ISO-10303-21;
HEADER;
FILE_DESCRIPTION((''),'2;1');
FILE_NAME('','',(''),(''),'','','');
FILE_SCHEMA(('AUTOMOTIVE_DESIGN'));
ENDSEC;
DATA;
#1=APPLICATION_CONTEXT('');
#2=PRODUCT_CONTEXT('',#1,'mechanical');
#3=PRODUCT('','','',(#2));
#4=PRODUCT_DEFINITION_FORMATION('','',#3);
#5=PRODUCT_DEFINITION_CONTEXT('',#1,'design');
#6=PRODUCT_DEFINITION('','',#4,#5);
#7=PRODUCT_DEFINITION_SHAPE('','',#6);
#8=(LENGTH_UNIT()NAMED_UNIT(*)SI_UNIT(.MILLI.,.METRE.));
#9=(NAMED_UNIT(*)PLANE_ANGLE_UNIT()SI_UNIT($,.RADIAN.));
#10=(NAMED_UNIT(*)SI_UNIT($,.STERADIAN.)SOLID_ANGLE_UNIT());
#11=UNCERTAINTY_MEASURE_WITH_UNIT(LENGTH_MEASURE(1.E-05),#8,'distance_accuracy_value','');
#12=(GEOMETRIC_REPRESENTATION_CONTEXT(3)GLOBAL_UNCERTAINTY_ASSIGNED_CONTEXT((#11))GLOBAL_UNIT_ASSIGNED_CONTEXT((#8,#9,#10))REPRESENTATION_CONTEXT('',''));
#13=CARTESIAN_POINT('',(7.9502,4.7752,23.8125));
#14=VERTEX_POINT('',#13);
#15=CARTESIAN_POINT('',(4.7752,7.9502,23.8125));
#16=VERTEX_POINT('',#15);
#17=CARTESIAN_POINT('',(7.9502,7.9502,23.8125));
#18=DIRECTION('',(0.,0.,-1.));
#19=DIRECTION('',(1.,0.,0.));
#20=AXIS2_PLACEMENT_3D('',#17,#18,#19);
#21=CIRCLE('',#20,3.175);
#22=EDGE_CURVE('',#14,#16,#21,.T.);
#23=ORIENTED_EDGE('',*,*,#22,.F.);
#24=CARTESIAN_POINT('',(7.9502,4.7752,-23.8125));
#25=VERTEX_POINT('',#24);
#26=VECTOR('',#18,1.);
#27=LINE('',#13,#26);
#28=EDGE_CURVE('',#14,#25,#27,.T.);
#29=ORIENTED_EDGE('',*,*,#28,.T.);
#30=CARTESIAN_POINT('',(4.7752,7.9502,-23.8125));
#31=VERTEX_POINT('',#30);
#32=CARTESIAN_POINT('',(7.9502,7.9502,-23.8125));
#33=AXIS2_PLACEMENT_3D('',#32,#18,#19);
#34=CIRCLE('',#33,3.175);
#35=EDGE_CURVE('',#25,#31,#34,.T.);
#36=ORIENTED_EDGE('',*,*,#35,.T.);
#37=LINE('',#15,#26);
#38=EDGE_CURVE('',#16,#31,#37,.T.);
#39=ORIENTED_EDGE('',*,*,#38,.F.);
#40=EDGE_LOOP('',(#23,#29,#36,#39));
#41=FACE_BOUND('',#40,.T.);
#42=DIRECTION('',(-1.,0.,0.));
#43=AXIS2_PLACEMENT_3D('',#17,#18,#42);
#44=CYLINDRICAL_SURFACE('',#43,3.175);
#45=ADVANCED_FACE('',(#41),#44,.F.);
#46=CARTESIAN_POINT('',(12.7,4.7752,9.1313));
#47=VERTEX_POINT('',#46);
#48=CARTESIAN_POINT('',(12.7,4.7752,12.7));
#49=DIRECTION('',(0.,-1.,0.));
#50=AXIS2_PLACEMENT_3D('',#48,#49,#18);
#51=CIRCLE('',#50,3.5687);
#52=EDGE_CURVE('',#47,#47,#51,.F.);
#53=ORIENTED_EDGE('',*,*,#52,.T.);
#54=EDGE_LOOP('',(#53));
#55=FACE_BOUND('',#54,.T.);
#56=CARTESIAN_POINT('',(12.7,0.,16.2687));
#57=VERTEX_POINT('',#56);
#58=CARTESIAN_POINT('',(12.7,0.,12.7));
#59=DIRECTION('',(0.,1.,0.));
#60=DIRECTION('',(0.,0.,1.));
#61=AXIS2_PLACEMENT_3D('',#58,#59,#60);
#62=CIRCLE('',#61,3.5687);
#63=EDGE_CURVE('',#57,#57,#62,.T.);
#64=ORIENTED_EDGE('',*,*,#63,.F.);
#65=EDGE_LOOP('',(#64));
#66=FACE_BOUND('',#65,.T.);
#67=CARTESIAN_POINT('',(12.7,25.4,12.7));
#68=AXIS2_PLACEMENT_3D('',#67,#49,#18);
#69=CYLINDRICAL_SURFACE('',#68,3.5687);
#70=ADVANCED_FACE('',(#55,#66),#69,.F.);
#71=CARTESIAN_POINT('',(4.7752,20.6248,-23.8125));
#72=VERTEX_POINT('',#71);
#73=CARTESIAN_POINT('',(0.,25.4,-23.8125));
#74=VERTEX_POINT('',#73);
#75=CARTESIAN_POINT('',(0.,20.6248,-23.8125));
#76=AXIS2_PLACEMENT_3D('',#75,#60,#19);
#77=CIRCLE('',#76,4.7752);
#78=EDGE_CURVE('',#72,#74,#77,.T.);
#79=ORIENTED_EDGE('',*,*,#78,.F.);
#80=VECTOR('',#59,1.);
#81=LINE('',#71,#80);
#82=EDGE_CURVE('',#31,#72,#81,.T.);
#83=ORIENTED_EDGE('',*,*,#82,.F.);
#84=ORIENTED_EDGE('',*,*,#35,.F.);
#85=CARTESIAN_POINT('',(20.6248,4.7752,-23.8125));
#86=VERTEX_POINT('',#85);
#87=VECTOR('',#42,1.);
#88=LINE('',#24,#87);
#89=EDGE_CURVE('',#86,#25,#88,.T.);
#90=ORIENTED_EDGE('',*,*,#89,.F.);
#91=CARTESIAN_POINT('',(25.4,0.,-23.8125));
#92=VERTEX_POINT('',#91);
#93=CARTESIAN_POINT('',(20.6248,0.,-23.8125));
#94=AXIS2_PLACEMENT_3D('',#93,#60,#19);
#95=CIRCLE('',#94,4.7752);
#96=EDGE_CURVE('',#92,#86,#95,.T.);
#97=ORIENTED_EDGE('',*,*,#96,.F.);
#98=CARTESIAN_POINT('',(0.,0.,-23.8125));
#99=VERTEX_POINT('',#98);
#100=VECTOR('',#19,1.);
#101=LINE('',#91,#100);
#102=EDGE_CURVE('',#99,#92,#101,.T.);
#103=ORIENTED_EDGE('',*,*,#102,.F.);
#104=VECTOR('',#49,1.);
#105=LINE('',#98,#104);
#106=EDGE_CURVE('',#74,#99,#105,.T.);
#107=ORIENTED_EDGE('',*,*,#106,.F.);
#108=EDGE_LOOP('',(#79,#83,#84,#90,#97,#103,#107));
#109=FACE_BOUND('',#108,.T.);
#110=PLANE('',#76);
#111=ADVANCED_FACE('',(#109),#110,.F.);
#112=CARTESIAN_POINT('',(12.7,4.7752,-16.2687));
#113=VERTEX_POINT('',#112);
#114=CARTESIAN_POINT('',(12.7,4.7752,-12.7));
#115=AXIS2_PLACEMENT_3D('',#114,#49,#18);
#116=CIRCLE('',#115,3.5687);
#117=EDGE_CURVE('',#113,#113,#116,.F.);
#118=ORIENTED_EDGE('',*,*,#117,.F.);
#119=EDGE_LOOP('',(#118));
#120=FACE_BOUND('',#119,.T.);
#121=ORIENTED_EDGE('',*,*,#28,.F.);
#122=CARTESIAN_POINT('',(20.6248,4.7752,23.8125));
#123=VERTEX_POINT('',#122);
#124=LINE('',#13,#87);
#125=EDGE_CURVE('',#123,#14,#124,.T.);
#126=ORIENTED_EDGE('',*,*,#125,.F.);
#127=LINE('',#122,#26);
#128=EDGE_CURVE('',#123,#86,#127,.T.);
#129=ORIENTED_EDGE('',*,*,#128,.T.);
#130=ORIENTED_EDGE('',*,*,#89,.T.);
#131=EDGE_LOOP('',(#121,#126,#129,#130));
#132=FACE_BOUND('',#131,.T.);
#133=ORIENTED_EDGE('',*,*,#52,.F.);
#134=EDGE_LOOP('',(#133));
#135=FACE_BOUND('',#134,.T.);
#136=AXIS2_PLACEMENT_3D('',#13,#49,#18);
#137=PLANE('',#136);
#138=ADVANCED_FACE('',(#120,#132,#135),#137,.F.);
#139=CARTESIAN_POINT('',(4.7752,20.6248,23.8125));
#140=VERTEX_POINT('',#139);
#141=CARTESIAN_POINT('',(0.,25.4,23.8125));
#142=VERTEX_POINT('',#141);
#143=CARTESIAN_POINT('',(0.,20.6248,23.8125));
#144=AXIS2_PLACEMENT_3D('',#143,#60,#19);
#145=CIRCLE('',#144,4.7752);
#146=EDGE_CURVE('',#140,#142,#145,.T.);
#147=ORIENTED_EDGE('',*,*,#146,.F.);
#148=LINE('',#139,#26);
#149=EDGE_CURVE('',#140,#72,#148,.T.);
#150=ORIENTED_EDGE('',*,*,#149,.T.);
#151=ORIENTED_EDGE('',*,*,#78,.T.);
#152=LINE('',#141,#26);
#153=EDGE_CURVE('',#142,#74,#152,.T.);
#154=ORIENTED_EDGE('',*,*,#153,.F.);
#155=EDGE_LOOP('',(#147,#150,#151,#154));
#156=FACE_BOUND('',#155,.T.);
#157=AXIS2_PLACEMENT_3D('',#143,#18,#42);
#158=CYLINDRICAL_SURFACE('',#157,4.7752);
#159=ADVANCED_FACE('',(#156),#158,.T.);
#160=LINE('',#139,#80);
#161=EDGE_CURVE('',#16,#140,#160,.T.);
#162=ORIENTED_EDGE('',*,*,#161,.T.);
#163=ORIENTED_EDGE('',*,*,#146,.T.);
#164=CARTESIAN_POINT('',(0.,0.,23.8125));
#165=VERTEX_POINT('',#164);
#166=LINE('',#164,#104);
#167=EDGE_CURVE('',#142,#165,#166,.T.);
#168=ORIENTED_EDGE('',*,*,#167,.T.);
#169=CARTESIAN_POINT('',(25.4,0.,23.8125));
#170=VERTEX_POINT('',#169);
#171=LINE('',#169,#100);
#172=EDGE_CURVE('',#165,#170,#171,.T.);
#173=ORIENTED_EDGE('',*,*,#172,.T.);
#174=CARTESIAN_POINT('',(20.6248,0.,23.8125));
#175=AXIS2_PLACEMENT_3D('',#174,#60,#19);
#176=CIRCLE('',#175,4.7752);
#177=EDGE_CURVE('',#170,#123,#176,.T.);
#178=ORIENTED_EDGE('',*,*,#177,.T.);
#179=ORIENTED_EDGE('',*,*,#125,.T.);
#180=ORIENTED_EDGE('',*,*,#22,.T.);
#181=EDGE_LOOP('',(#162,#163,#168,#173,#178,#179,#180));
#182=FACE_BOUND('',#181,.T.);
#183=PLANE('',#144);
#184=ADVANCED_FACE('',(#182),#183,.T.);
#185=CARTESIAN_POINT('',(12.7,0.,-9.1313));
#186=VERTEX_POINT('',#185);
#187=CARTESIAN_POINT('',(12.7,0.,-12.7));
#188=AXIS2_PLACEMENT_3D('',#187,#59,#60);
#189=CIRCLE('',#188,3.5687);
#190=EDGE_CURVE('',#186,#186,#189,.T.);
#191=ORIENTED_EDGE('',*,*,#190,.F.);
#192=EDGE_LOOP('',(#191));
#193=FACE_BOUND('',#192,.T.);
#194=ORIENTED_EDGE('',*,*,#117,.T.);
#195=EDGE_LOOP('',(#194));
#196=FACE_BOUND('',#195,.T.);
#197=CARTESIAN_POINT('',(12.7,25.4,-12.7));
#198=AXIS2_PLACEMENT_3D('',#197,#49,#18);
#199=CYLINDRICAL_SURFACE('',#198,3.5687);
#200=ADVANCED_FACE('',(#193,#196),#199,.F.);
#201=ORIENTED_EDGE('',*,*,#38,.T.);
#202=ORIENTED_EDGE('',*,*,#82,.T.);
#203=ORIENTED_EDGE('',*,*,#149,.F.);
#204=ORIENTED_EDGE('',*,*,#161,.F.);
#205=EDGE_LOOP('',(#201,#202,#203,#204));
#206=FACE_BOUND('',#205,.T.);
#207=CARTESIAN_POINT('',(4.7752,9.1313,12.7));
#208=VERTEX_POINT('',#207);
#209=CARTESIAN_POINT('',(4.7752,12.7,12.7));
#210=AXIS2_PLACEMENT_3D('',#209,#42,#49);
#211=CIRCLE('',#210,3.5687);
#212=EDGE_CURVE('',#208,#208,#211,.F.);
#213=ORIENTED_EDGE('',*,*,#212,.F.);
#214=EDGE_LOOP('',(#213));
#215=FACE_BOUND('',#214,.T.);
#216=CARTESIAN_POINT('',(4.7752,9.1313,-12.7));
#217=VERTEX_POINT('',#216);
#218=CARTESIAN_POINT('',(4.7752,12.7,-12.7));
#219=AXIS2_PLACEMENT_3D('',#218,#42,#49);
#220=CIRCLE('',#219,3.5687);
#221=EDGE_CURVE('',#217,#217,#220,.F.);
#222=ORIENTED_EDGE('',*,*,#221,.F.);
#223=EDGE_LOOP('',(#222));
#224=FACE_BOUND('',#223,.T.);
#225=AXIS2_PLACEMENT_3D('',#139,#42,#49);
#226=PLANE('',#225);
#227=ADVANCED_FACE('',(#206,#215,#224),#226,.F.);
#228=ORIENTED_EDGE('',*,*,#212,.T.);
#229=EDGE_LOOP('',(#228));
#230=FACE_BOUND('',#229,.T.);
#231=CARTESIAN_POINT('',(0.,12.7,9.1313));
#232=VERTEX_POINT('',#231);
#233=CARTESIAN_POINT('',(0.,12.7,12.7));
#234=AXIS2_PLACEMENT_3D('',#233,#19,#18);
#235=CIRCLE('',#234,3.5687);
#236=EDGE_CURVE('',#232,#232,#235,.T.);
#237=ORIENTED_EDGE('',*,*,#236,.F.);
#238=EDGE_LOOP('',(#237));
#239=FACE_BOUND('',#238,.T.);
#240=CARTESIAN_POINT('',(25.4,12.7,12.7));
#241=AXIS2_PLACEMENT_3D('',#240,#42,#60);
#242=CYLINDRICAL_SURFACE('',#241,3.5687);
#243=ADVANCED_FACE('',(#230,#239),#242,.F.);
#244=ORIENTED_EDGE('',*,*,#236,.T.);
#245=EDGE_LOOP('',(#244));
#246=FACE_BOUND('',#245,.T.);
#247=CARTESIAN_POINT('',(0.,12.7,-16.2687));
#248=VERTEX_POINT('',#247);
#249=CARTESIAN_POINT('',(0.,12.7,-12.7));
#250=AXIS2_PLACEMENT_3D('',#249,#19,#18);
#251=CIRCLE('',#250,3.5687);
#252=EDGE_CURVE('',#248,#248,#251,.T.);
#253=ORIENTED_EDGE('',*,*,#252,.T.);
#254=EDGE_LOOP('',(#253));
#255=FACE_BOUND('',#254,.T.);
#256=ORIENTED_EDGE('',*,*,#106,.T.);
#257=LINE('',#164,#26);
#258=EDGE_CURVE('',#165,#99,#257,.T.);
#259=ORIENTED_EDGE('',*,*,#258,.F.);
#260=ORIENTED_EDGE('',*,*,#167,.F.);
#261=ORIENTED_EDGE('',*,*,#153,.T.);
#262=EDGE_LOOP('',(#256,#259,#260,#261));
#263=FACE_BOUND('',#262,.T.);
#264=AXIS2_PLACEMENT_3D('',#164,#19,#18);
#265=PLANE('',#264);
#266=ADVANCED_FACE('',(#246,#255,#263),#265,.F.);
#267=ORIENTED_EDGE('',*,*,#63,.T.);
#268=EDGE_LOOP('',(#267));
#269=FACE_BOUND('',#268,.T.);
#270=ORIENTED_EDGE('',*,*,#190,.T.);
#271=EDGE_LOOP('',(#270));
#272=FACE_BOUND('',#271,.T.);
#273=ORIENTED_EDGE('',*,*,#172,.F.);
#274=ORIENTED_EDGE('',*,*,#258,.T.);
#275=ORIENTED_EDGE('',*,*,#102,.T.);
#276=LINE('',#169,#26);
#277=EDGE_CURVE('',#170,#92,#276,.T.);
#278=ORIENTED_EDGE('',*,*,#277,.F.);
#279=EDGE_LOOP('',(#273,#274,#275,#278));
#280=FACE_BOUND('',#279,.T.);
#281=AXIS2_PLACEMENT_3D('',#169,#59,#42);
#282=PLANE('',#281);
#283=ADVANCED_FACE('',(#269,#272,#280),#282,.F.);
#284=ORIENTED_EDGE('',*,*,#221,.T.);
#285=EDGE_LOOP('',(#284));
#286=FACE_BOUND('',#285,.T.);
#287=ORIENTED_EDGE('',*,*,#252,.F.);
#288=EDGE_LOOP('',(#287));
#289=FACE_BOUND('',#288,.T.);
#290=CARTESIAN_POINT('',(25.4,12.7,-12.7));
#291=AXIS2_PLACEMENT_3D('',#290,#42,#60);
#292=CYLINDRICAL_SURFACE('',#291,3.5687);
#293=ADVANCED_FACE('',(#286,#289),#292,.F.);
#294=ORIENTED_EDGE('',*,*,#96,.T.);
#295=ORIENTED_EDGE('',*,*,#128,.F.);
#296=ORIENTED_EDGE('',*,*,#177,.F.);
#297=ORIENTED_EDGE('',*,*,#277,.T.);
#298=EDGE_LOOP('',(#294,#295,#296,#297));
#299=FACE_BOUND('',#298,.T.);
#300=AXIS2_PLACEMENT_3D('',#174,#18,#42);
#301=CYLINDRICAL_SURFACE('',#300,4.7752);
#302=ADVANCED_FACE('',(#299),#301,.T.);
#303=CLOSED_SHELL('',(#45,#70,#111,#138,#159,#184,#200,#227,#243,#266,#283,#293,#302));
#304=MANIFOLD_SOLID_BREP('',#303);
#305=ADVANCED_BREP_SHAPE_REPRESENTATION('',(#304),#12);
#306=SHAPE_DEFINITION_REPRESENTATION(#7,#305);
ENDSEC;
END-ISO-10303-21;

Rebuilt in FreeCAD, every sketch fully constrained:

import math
import FreeCAD as App
import Part
import Sketcher
Q = App.Units.Quantity

doc = App.newDocument("Part")
params = doc.addObject("Spreadsheet::Sheet", "Params")
for row, (alias, value) in enumerate([
    ("sketch1_width", "1 in"),
    ("sketch1_radius", "0.188 in"),
    ("sketch1_radius2", "0.125 in"),
    ("pad1_length", "1.875 in"),
    ("sketch2_diameter", "0.281 in"),
    ("sketch3_diameter", "0.281 in"),
], start=1):
    params.set(f"A{row}", alias)
    params.set(f"B{row}", "=" + value)
    params.setAlias(f"B{row}", alias)

body = doc.addObject("PartDesign::Body", "Body")

sketch1 = doc.addObject("Sketcher::SketchObject", "Sketch")
body.addObject(sketch1)
sketch1.AttachmentSupport = (doc.XY_Plane, [""])
sketch1.MapMode = "FlatFace"
sketch1.addGeometry([
    Part.LineSegment(App.Vector(0, 25.4, 0), App.Vector(0, 0, 0)),
    Part.LineSegment(App.Vector(0, 0, 0), App.Vector(25.4, 0, 0)),
    Part.ArcOfCircle(Part.Circle(App.Vector(20.6248, 0, 0), App.Vector(0, 0, 1), 4.7752), math.radians(0), math.radians(90)),
    Part.LineSegment(App.Vector(20.6248, 4.7752, 0), App.Vector(7.9502, 4.7752, 0)),
    Part.ArcOfCircle(Part.Circle(App.Vector(7.9502, 7.9502, 0), App.Vector(0, 0, 1), 3.175), math.radians(-180), math.radians(-90)),
    Part.LineSegment(App.Vector(4.7752, 7.9502, 0), App.Vector(4.7752, 20.6248, 0)),
    Part.ArcOfCircle(Part.Circle(App.Vector(0, 20.6248, 0), App.Vector(0, 0, 1), 4.7752), math.radians(0), math.radians(90)),
], False)
sketch1.addConstraint([
    Sketcher.Constraint("Coincident", 0, 2, 1, 1),
    Sketcher.Constraint("Coincident", 1, 2, 2, 1),
    Sketcher.Constraint("Tangent", 2, 2, 3, 1),
    Sketcher.Constraint("Tangent", 3, 2, 4, 2),
    Sketcher.Constraint("Tangent", 4, 1, 5, 1),
    Sketcher.Constraint("Tangent", 5, 2, 6, 1),
    Sketcher.Constraint("Coincident", 6, 2, 0, 1),
    Sketcher.Constraint("Vertical", 0),
    Sketcher.Constraint("Horizontal", 1),
    Sketcher.Constraint("Horizontal", 3),
    Sketcher.Constraint("Vertical", 5),
    Sketcher.Constraint("Coincident", 0, 2, -1, 1),
    Sketcher.Constraint("Equal", 2, 6),
    Sketcher.Constraint("PointOnObject", 2, 3, -1),
    Sketcher.Constraint("PointOnObject", 6, 3, -2),
    Sketcher.Constraint("Equal", 1, 0),
    Sketcher.Constraint("DistanceX", 1, 1, 1, 2, Q("1 in")),
    Sketcher.Constraint("Radius", 2, Q("0.188 in")),
    Sketcher.Constraint("Radius", 4, Q("0.125 in")),
])
sketch1.setExpression("Constraints[16]", "Params.sketch1_width")
sketch1.setExpression("Constraints[17]", "Params.sketch1_radius")
sketch1.setExpression("Constraints[18]", "Params.sketch1_radius2")
pad1 = doc.addObject("PartDesign::Pad", "Pad")
body.addObject(pad1)
pad1.Profile = sketch1
pad1.setExpression("Length", "Params.pad1_length")
pad1.Midplane = True

sketch2 = doc.addObject("Sketcher::SketchObject", "Sketch001")
body.addObject(sketch2)
sketch2.AttachmentSupport = (doc.XZ_Plane, [""])
sketch2.MapMode = "FlatFace"
sketch2.addGeometry([
    Part.Circle(App.Vector(12.7, 12.7, 0), App.Vector(0, 0, 1), 3.5687),
    Part.Circle(App.Vector(12.7, -12.7, 0), App.Vector(0, 0, 1), 3.5687),
], False)
sketch2.addConstraint([
    Sketcher.Constraint("Equal", 0, 1),
    Sketcher.Constraint("Symmetric", 0, 3, 1, 3, -1),
    Sketcher.Constraint("Diameter", 0, Q("0.281 in")),
    Sketcher.Constraint("DistanceY", 1, 3, 0, 3, Q("1 in")),
    Sketcher.Constraint("DistanceX", -1, 1, 0, 3, Q("0.5 in")),
])
sketch2.setExpression("Constraints[2]", "Params.sketch2_diameter")
pocket1 = doc.addObject("PartDesign::Pocket", "Pocket")
body.addObject(pocket1)
pocket1.Profile = sketch2
pocket1.Type = "ThroughAll"

sketch3 = doc.addObject("Sketcher::SketchObject", "Sketch002")
body.addObject(sketch3)
sketch3.AttachmentSupport = (doc.YZ_Plane, [""])
sketch3.MapMode = "FlatFace"
sketch3.addGeometry([
    Part.Circle(App.Vector(12.7, 12.7, 0), App.Vector(0, 0, 1), 3.5687),
    Part.Circle(App.Vector(12.7, -12.7, 0), App.Vector(0, 0, 1), 3.5687),
], False)
sketch3.addConstraint([
    Sketcher.Constraint("Equal", 0, 1),
    Sketcher.Constraint("Symmetric", 0, 3, 1, 3, -1),
    Sketcher.Constraint("Diameter", 0, Q("0.281 in")),
    Sketcher.Constraint("DistanceY", 1, 3, 0, 3, Q("1 in")),
    Sketcher.Constraint("DistanceX", -1, 1, 0, 3, Q("0.5 in")),
])
sketch3.setExpression("Constraints[2]", "Params.sketch3_diameter")
pocket2 = doc.addObject("PartDesign::Pocket", "Pocket001")
body.addObject(pocket2)
pocket2.Profile = sketch3
pocket2.Type = "ThroughAll"
pocket2.Reversed = True

doc.recompute()
